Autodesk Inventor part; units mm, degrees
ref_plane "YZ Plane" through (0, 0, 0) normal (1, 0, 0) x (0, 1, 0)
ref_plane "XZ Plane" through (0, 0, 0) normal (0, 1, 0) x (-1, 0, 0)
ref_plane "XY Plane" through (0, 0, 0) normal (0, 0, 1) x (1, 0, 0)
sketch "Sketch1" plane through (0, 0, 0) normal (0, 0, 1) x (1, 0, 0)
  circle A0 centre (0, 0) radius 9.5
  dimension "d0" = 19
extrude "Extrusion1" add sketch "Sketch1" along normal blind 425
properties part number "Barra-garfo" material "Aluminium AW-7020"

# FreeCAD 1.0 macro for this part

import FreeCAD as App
import Part
import Sketcher

V = App.Vector
Q = App.Units.Quantity

doc = App.newDocument("Part")
body = doc.addObject("PartDesign::Body", "Body")

# Sketch on XY plane
sketch1 = body.newObject("Sketcher::SketchObject", "Sketch")
sketch1.AttachmentSupport = (doc.getObject("XY_Plane"), [""])
sketch1.MapMode = "FlatFace"
sketch1.addGeometry(Part.Circle(V(0, 0, 0), V(0, 0, 1), 10), False)
sketch1.addConstraint(Sketcher.Constraint("Coincident", 0, 3, -1, 1))
sketch1.addConstraint(Sketcher.Constraint("Diameter", 0, Q("19 mm")))
pad1 = body.newObject("PartDesign::Pad", "Pad")
pad1.Profile = sketch1
pad1.Length = 425

doc.recompute()
